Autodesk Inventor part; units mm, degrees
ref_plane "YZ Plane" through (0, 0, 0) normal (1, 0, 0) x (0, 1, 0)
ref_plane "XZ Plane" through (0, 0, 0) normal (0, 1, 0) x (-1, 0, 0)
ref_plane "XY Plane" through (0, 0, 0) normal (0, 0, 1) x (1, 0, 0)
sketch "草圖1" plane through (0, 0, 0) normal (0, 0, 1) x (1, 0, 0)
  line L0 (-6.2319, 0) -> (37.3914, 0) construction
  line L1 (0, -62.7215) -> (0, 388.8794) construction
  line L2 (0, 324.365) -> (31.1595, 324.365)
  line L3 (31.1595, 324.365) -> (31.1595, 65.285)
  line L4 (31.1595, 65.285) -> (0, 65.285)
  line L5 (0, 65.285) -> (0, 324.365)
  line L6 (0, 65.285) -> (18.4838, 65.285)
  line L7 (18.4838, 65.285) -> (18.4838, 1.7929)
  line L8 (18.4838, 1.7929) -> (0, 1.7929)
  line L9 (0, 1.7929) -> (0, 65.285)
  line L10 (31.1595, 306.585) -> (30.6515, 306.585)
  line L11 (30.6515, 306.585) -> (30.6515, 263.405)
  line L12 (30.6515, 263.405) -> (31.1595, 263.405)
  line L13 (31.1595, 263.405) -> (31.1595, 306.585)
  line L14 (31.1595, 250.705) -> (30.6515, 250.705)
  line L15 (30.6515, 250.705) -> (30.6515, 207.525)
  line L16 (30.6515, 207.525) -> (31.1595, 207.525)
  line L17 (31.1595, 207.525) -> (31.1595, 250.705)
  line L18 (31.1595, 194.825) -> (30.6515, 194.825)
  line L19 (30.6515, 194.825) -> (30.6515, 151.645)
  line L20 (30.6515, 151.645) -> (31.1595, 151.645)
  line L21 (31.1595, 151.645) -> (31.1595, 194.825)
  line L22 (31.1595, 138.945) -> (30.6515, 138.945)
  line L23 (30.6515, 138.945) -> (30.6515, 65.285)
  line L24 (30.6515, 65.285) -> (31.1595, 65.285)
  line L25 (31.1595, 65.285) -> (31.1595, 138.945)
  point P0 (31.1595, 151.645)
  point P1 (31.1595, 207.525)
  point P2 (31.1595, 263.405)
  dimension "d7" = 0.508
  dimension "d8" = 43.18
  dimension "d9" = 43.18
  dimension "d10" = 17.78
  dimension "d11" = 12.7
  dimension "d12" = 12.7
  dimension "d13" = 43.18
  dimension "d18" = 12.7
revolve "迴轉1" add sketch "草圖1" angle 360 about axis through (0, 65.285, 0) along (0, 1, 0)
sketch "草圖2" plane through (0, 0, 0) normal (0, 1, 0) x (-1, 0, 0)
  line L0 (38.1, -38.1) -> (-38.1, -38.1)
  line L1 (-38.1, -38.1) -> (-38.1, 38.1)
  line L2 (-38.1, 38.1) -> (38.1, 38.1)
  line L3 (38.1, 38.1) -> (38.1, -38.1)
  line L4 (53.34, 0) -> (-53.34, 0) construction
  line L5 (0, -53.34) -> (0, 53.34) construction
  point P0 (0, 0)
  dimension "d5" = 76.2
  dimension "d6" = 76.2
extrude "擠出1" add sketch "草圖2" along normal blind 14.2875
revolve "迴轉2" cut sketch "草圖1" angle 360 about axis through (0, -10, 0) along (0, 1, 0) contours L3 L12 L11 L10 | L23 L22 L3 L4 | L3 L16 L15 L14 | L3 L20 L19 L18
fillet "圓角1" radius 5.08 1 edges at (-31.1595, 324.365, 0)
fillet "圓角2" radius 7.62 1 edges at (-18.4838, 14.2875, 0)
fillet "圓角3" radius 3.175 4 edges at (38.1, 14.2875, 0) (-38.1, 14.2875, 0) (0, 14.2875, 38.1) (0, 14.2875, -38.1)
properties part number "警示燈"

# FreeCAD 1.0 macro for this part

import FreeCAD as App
import Part
import Sketcher
from FreeCAD import Vector
Q = App.Units.Quantity


def edges_at(feature, points):
    """Names of the edges that pass closest to the given points."""
    edges = feature.Shape.Edges
    near = lambda p: min(range(len(edges)), key=lambda i: edges[i].distToShape(Part.Vertex(*p))[0])
    return sorted({f"Edge{near(p) + 1}" for p in points})


def add_polygon(sketch, points):
    """Adds a closed chain of lines whose ends are joined by coincident constraints."""
    first, n = sketch.GeometryCount, len(points)
    for a, b in zip(points, points[1:] + points[:1]):
        sketch.addGeometry(Part.LineSegment(App.Vector(*a, 0), App.Vector(*b, 0)), False)
    for i in range(n):
        sketch.addConstraint(Sketcher.Constraint("Coincident", first + i, 2, first + (i + 1) % n, 1))

doc = App.newDocument("Part")
params = doc.addObject("Spreadsheet::Sheet", "Params")
for row, (alias, value) in enumerate([
    ("sketch1_height", "10.2 in"),
    ("revolution_angle", "360 deg"),
    ("sketch2_width", "3 in"),
    ("pad1_length", "0.5625 in"),
    ("sketch3_height", "1.7 in"),
    ("sketch3_width", "0.02 in"),
    ("sketch3_height2", "2.9 in"),
    ("groove_angle", "360 deg"),
    ("fillet_radius", "0.2 in"),
    ("fillet2_radius", "0.3 in"),
    ("fillet3_radius", "0.125 in"),
], start=1):
    params.set(f"A{row}", alias)
    params.set(f"B{row}", "=" + value)
    params.setAlias(f"B{row}", alias)

body = doc.addObject("PartDesign::Body", "Body")

sketch1 = body.newObject("Sketcher::SketchObject", "Sketch")
sketch1.AttachmentSupport = (doc.getObject("XY_Plane"), [""])
sketch1.MapMode = "FlatFace"
add_polygon(sketch1, [(31.1595, 324.365), (0, 324.365), (0, 1.7929), (18.4838, 1.7929), (18.4838, 65.285), (31.1595, 65.285)])
sketch1.addConstraint([
    Sketcher.Constraint("Horizontal", 0),
    Sketcher.Constraint("Vertical", 1),
    Sketcher.Constraint("Horizontal", 2),
    Sketcher.Constraint("Vertical", 3),
    Sketcher.Constraint("Horizontal", 4),
    Sketcher.Constraint("Vertical", 5),
    Sketcher.Constraint("PointOnObject", 0, 2, -2),
    Sketcher.Constraint("DistanceY", 5, 1, 5, 2, Q("10.2 in")),
    Sketcher.Constraint("DistanceX", 2, 1, 2, 2, Q("0.7277 in")),
    Sketcher.Constraint("DistanceY", 1, 2, 1, 1, Q("12.6997 in")),
    Sketcher.Constraint("DistanceX", 0, 2, 0, 1, Q("31.1595 mm")),
    Sketcher.Constraint("DistanceY", -1, 1, 0, 2, Q("324.365 mm")),
])
sketch1.setExpression("Constraints[13]", "Params.sketch1_height")
revolution = body.newObject("PartDesign::Revolution", "Revolution")
revolution.Profile = sketch1
revolution.ReferenceAxis = (sketch1, ["V_Axis"])
revolution.setExpression("Angle", "Params.revolution_angle")

sketch2 = body.newObject("Sketcher::SketchObject", "Sketch001")
sketch2.AttachmentSupport = (doc.getObject("XZ_Plane"), [""])
sketch2.MapMode = "FlatFace"
add_polygon(sketch2, [(38.1, -38.1), (-38.1, -38.1), (-38.1, 38.1), (38.1, 38.1)])
sketch2.addConstraint([
    Sketcher.Constraint("Horizontal", 0),
    Sketcher.Constraint("Vertical", 1),
    Sketcher.Constraint("Horizontal", 2),
    Sketcher.Constraint("Vertical", 3),
    Sketcher.Constraint("Symmetric", 0, 2, 2, 2, -1, 1),
    Sketcher.Constraint("Equal", 2, 1),
    Sketcher.Constraint("DistanceX", 0, 2, 0, 1, Q("3 in")),
])
sketch2.setExpression("Constraints[10]", "Params.sketch2_width")
pad1 = body.newObject("PartDesign::Pad", "Pad")
pad1.Profile = sketch2
pad1.setExpression("Length", "Params.pad1_length")
pad1.Reversed = True

sketch3 = body.newObject("Sketcher::SketchObject", "Sketch002")
sketch3.AttachmentSupport = (doc.getObject("XY_Plane"), [""])
sketch3.MapMode = "FlatFace"
add_polygon(sketch3, [(31.1595, 263.405), (31.1595, 306.585), (30.6515, 306.585), (30.6515, 263.405)])
add_polygon(sketch3, [(30.6515, 138.945), (30.6515, 65.285), (31.1595, 65.285), (31.1595, 138.945)])
add_polygon(sketch3, [(31.1595, 207.525), (31.1595, 250.705), (30.6515, 250.705), (30.6515, 207.525)])
add_polygon(sketch3, [(31.1595, 151.645), (31.1595, 194.825), (30.6515, 194.825), (30.6515, 151.645)])
sketch3.addConstraint([
    Sketcher.Constraint("Vertical", 0),
    Sketcher.Constraint("Horizontal", 1),
    Sketcher.Constraint("Vertical", 2),
    Sketcher.Constraint("Horizontal", 3),
    Sketcher.Constraint("Vertical", 4),
    Sketcher.Constraint("Horizontal", 5),
    Sketcher.Constraint("Vertical", 6),
    Sketcher.Constraint("Horizontal", 7),
    Sketcher.Constraint("Vertical", 8),
    Sketcher.Constraint("Horizontal", 9),
    Sketcher.Constraint("Vertical", 10),
    Sketcher.Constraint("Horizontal", 11),
    Sketcher.Constraint("Vertical", 12),
    Sketcher.Constraint("Horizontal", 13),
    Sketcher.Constraint("Vertical", 14),
    Sketcher.Constraint("Horizontal", 15),
    Sketcher.Constraint("Vertical", 2, 2, 4, 2),
    Sketcher.Constraint("Vertical", 3, 2, 5, 2),
    Sketcher.Constraint("Vertical", 6, 2, 8, 2),
    Sketcher.Constraint("Vertical", 7, 2, 9, 2),
    Sketcher.Constraint("Vertical", 11, 2, 12, 2),
    Sketcher.Constraint("Vertical", 10, 2, 13, 2),
    Sketcher.Constraint("Equal", 2, 8),
    Sketcher.Constraint("Equal", 10, 12),
    Sketcher.Constraint("DistanceY", 0, 1, 0, 2, Q("1.7 in")),
    Sketcher.Constraint("DistanceX", 1, 2, 1, 1, Q("0.02 in")),
    Sketcher.Constraint("DistanceY", 8, 2, 3, 2, Q("0.5 in")),
    Sketcher.Constraint("DistanceY", 12, 2, 11, 2, Q("0.5 in")),
    Sketcher.Constraint("DistanceY", 7, 2, 14, 2, Q("0.5 in")),
    Sketcher.Constraint("DistanceY", 4, 2, 4, 1, Q("2.9 in")),
    Sketcher.Constraint("DistanceX", -1, 1, 0, 2, Q("31.1595 mm")),
    Sketcher.Constraint("DistanceY", -1, 1, 0, 2, Q("306.585 mm")),
])
sketch3.setExpression("Constraints[40]", "Params.sketch3_height")
sketch3.setExpression("Constraints[41]", "Params.sketch3_width")
sketch3.setExpression("Constraints[45]", "Params.sketch3_height2")
groove = body.newObject("PartDesign::Groove", "Groove")
groove.Profile = sketch3
groove.ReferenceAxis = (sketch3, ["V_Axis"])
groove.setExpression("Angle", "Params.groove_angle")
doc.recompute()

fillet = body.newObject("PartDesign::Fillet", "Fillet")
fillet.Base = (groove, edges_at(groove, [(-31.16, 324.365, 0)]))
fillet.setExpression("Radius", "Params.fillet_radius")
doc.recompute()

fillet2 = body.newObject("PartDesign::Fillet", "Fillet001")
fillet2.Base = (fillet, edges_at(fillet, [(-18.484, 14.287, 0)]))
fillet2.setExpression("Radius", "Params.fillet2_radius")
doc.recompute()

fillet3 = body.newObject("PartDesign::Fillet", "Fillet002")
fillet3.Base = (fillet2, edges_at(fillet2, [
    (38.1, 14.287, 0),
    (-38.1, 14.287, 0),
    (0, 14.287, 38.1),
    (0, 14.287, -38.1),
]))
fillet3.setExpression("Radius", "Params.fillet3_radius")

doc.recompute()
